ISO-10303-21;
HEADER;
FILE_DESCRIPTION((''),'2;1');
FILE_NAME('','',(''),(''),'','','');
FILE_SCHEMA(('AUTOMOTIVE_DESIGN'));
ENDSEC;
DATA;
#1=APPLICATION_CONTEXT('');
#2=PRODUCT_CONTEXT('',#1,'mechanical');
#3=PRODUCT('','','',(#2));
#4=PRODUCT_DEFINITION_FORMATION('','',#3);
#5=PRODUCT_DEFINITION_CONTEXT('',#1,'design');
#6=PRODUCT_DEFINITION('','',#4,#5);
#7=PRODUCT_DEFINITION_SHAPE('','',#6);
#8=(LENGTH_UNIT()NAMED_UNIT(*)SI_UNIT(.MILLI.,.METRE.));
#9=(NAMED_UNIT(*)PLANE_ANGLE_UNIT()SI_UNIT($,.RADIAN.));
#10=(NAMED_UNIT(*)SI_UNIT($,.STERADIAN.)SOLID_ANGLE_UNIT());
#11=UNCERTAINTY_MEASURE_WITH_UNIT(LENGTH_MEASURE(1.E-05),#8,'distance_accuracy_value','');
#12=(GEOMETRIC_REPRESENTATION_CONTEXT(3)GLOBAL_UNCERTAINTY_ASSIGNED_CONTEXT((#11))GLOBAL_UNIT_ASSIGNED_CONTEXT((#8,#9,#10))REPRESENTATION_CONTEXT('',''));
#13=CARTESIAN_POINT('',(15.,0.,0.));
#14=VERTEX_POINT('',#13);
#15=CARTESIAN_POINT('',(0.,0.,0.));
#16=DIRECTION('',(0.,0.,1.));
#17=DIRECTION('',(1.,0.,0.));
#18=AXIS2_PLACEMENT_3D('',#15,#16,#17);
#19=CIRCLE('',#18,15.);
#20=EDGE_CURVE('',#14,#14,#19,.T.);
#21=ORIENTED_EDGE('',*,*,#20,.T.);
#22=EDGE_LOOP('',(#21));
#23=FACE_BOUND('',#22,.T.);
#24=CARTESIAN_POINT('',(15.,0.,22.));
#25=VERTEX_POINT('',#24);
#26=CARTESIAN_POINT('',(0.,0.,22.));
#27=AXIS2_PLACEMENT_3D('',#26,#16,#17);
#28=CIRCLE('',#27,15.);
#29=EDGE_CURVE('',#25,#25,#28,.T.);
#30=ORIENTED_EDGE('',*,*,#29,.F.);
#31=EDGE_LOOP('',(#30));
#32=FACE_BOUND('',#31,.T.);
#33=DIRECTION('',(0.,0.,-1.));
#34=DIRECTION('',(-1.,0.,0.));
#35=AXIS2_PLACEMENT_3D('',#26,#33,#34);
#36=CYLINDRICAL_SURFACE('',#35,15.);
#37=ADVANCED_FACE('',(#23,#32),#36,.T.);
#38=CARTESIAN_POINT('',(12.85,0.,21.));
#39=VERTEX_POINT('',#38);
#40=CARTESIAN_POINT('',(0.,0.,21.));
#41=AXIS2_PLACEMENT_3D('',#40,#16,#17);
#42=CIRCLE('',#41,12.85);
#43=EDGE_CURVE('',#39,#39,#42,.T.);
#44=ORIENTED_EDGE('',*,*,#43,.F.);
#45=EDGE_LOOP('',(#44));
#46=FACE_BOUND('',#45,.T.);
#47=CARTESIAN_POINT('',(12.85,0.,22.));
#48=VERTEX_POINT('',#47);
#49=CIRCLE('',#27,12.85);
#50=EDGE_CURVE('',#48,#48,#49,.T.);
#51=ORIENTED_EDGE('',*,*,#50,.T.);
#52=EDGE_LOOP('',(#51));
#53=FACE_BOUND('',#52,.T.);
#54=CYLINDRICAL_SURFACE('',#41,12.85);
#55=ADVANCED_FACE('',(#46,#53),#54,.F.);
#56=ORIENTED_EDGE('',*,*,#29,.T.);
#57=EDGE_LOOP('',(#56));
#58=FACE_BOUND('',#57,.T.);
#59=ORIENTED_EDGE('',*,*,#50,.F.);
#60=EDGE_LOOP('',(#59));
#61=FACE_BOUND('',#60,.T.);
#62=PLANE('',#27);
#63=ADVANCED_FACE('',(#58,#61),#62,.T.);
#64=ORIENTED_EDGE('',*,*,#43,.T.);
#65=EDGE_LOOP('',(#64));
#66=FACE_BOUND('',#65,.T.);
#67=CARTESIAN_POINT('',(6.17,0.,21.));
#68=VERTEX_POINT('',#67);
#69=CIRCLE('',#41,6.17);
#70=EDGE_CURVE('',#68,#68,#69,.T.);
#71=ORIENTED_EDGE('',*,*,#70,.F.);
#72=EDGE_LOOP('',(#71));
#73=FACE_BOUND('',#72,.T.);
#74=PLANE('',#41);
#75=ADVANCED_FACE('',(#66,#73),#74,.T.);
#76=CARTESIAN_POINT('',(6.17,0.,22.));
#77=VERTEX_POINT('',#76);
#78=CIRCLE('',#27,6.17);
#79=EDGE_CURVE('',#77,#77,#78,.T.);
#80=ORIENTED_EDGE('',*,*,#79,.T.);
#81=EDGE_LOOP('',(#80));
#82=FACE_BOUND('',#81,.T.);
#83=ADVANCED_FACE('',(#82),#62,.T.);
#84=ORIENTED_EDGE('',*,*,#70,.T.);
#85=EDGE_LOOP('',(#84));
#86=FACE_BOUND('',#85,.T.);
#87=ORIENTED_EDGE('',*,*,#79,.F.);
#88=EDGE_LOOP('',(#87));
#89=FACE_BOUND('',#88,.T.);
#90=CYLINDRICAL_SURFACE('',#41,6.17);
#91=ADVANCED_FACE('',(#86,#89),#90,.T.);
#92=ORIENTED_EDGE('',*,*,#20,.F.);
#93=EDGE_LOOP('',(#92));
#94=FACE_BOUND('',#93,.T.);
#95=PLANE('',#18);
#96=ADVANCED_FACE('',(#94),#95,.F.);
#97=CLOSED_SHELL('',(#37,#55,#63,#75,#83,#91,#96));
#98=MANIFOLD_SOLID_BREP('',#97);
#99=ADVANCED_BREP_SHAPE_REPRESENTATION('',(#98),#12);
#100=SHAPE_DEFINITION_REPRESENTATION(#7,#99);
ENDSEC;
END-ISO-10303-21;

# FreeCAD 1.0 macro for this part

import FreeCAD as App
import Part
import Sketcher

doc = App.newDocument("Part")
params = doc.addObject("Spreadsheet::Sheet", "Params")
for row, (alias, value) in enumerate([
    ("sketch1_diameter", "30 mm"),
    ("pad1_length", "22 mm"),
    ("sketch2_diameter", "25.7 mm"),
    ("sketch2_diameter2", "12.34 mm"),
    ("pocket1_length", "1 mm"),
], start=1):
    params.set(f"A{row}", alias)
    params.set(f"B{row}", "=" + value)
    params.setAlias(f"B{row}", alias)

body = doc.addObject("PartDesign::Body", "Body")

# Sketch on XY plane
sketch1 = body.newObject("Sketcher::SketchObject", "Sketch")
sketch1.AttachmentSupport = (doc.getObject("XY_Plane"), [""])
sketch1.MapMode = "FlatFace"
sketch1.addGeometry(Part.Circle(App.Vector(0, 0, 0), App.Vector(0, 0, 1), 15), False)
sketch1.addConstraint(Sketcher.Constraint("Coincident", 0, 3, -1, 1))
sketch1.addConstraint(Sketcher.Constraint("Diameter", 0, 30.0))
sketch1.setExpression("Constraints[1]", "Params.sketch1_diameter")
pad1 = body.newObject("PartDesign::Pad", "Pad")
pad1.Profile = sketch1
pad1.setExpression("Length", "Params.pad1_length")

# Sketch on XY plane
sketch2 = body.newObject("Sketcher::SketchObject", "Sketch001")
sketch2.AttachmentSupport = (doc.getObject("XY_Plane"), [""])
sketch2.MapMode = "FlatFace"
sketch2.AttachmentOffset = App.Placement(App.Vector(0, 0, 22), App.Rotation())
sketch2.addGeometry(Part.Circle(App.Vector(0, 0, 0), App.Vector(0, 0, 1), 13), False)
sketch2.addGeometry(Part.Circle(App.Vector(0, 0, 0), App.Vector(0, 0, 1), 6), False)
sketch2.addConstraint(Sketcher.Constraint("Coincident", 0, 3, -1, 1))
sketch2.addConstraint(Sketcher.Constraint("Coincident", 1, 3, -1, 1))
sketch2.addConstraint(Sketcher.Constraint("Diameter", 0, 25.7))
sketch2.addConstraint(Sketcher.Constraint("Diameter", 1, 12.34))
sketch2.setExpression("Constraints[2]", "Params.sketch2_diameter")
sketch2.setExpression("Constraints[3]", "Params.sketch2_diameter2")
pocket1 = body.newObject("PartDesign::Pocket", "Pocket")
pocket1.Profile = sketch2
pocket1.setExpression("Length", "Params.pocket1_length")

doc.recompute()
